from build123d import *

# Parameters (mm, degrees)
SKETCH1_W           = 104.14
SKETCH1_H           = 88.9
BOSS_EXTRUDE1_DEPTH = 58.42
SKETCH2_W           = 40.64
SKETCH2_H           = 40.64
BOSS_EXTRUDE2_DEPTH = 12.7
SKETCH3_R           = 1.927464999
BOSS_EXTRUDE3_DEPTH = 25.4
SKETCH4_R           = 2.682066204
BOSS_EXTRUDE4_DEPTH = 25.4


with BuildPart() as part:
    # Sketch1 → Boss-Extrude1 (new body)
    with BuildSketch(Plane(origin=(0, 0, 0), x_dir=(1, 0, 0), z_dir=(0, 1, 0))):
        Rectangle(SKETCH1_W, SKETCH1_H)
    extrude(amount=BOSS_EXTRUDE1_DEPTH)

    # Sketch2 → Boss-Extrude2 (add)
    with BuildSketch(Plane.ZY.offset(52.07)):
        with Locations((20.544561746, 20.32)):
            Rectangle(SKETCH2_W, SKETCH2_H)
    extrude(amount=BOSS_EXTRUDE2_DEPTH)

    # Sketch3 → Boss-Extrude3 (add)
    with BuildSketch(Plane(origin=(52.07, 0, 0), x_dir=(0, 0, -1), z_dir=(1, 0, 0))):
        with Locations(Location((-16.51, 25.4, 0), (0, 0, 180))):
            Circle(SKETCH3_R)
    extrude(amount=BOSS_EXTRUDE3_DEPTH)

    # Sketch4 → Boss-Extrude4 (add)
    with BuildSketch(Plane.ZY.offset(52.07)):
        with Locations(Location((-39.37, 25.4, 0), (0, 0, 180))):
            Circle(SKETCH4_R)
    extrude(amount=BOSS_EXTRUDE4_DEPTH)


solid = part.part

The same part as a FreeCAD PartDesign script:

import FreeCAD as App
import Part
import Sketcher
from FreeCAD import Vector
Q = App.Units.Quantity

doc = App.newDocument("Part")
body = doc.addObject("PartDesign::Body", "Body")

# Sketch on XZ plane
sketch1 = body.newObject("Sketcher::SketchObject", "Sketch")
sketch1.AttachmentSupport = (doc.getObject("XZ_Plane"), [""])
sketch1.MapMode = "FlatFace"
sketch1.addGeometry([
    Part.LineSegment(Vector(-52, -44, 0), Vector(-52, 44, 0)),
    Part.LineSegment(Vector(-52, 44, 0), Vector(52, 44, 0)),
    Part.LineSegment(Vector(52, 44, 0), Vector(52, -44, 0)),
    Part.LineSegment(Vector(52, -44, 0), Vector(-52, -44, 0)),
], False)
sketch1.addConstraint([
    Sketcher.Constraint("Coincident", 0, 2, 1, 1),
    Sketcher.Constraint("Coincident", 1, 2, 2, 1),
    Sketcher.Constraint("Coincident", 2, 2, 3, 1),
    Sketcher.Constraint("Coincident", 3, 2, 0, 1),
    Sketcher.Constraint("Vertical", 0),
    Sketcher.Constraint("Horizontal", 1),
    Sketcher.Constraint("Vertical", 2),
    Sketcher.Constraint("Horizontal", 3),
    Sketcher.Constraint("Symmetric", 0, 2, 2, 2, -1, 1),
    Sketcher.Constraint("DistanceX", 1, 1, 1, 2, Q("4.1 in")),
    Sketcher.Constraint("DistanceY", 0, 1, 0, 2, Q("3.5 in")),
])
pad1 = body.newObject("PartDesign::Pad", "Pad")
pad1.Profile = sketch1
pad1.Length = Q("2.3 in")
pad1.Reversed = True

# Sketch on YZ plane
sketch2 = body.newObject("Sketcher::SketchObject", "Sketch001")
sketch2.AttachmentSupport = (doc.getObject("YZ_Plane"), [""])
sketch2.MapMode = "FlatFace"
sketch2.AttachmentOffset = App.Placement(Vector(0, 0, -2.05 * 25.4), App.Rotation())
sketch2.addGeometry([
    Part.LineSegment(Vector(41, 0, 0), Vector(0, 0, 0)),
    Part.LineSegment(Vector(0, 0, 0), Vector(0, 41, 0)),
    Part.LineSegment(Vector(0, 41, 0), Vector(41, 41, 0)),
    Part.LineSegment(Vector(41, 41, 0), Vector(41, 0, 0)),
], False)
sketch2.addConstraint([
    Sketcher.Constraint("Coincident", 0, 2, 1, 1),
    Sketcher.Constraint("Coincident", 1, 2, 2, 1),
    Sketcher.Constraint("Coincident", 2, 2, 3, 1),
    Sketcher.Constraint("Coincident", 3, 2, 0, 1),
    Sketcher.Constraint("Horizontal", 0),
    Sketcher.Constraint("Vertical", 1),
    Sketcher.Constraint("Horizontal", 2),
    Sketcher.Constraint("Vertical", 3),
    Sketcher.Constraint("PointOnObject", 0, 2, -2),
    Sketcher.Constraint("Equal", 2, 1),
    Sketcher.Constraint("DistanceX", 0, 2, 0, 1, Q("1.6 in")),
    Sketcher.Constraint("DistanceY", -1, 1, 0, 2, Q("0.224562 mm")),
])
pad2 = body.newObject("PartDesign::Pad", "Pad001")
pad2.Profile = sketch2
pad2.Length = Q("0.5 in")
pad2.Reversed = True

# Sketch on YZ plane
sketch3 = body.newObject("Sketcher::SketchObject", "Sketch002")
sketch3.AttachmentSupport = (doc.getObject("YZ_Plane"), [""])
sketch3.MapMode = "FlatFace"
sketch3.AttachmentOffset = App.Placement(Vector(0, 0, 2.05 * 25.4), App.Rotation())
sketch3.addGeometry(Part.Circle(Vector(25.4, 16.5, 0), Vector(0, 0, 1), 1.9), False)
sketch3.addConstraint([
    Sketcher.Constraint("DistanceX", -1, 1, 0, 3, Q("1 in")),
    Sketcher.Constraint("DistanceY", -1, 1, 0, 3, Q("0.65 in")),
    Sketcher.Constraint("Diameter", 0, Q("3.85493 mm")),
])
pad3 = body.newObject("PartDesign::Pad", "Pad002")
pad3.Profile = sketch3
pad3.Length = Q("1 in")

# Sketch on YZ plane
sketch4 = body.newObject("Sketcher::SketchObject", "Sketch003")
sketch4.AttachmentSupport = (doc.getObject("YZ_Plane"), [""])
sketch4.MapMode = "FlatFace"
sketch4.AttachmentOffset = App.Placement(Vector(0, 0, -2.05 * 25.4), App.Rotation())
sketch4.addGeometry(Part.Circle(Vector(25.4, -39.4, 0), Vector(0, 0, 1), 2.7), False)
sketch4.addConstraint([
    Sketcher.Constraint("DistanceX", -1, 1, 0, 3, Q("1 in")),
    Sketcher.Constraint("DistanceY", 0, 3, -1, 1, Q("1.55 in")),
    Sketcher.Constraint("Diameter", 0, Q("5.364132 mm")),
])
pad4 = body.newObject("PartDesign::Pad", "Pad003")
pad4.Profile = sketch4
pad4.Length = Q("1 in")
pad4.Reversed = True

doc.recompute()
